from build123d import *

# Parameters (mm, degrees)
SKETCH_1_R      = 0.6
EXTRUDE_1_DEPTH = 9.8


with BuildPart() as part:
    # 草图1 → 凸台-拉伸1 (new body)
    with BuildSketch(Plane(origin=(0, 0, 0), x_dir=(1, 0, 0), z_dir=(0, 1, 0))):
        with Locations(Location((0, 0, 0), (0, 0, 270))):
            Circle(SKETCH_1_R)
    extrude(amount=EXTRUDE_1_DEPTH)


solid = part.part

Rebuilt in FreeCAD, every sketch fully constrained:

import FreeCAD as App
import Part
import Sketcher
Q = App.Units.Quantity

doc = App.newDocument("Part")
body = doc.addObject("PartDesign::Body", "Body")

sketch1 = doc.addObject("Sketcher::SketchObject", "Sketch")
body.addObject(sketch1)
sketch1.AttachmentSupport = (doc.XZ_Plane, [""])
sketch1.MapMode = "FlatFace"
sketch1.addGeometry(Part.Circle(App.Vector(0, 0, 0), App.Vector(0, 0, 1), 0.6), False)
sketch1.addConstraint(Sketcher.Constraint("Coincident", 0, 3, -1, 1))
sketch1.addConstraint(Sketcher.Constraint("Diameter", 0, Q("1.2 mm")))
pad1 = doc.addObject("PartDesign::Pad", "Pad")
body.addObject(pad1)
pad1.Profile = sketch1
pad1.Length = 9.8
pad1.Reversed = True

doc.recompute()
